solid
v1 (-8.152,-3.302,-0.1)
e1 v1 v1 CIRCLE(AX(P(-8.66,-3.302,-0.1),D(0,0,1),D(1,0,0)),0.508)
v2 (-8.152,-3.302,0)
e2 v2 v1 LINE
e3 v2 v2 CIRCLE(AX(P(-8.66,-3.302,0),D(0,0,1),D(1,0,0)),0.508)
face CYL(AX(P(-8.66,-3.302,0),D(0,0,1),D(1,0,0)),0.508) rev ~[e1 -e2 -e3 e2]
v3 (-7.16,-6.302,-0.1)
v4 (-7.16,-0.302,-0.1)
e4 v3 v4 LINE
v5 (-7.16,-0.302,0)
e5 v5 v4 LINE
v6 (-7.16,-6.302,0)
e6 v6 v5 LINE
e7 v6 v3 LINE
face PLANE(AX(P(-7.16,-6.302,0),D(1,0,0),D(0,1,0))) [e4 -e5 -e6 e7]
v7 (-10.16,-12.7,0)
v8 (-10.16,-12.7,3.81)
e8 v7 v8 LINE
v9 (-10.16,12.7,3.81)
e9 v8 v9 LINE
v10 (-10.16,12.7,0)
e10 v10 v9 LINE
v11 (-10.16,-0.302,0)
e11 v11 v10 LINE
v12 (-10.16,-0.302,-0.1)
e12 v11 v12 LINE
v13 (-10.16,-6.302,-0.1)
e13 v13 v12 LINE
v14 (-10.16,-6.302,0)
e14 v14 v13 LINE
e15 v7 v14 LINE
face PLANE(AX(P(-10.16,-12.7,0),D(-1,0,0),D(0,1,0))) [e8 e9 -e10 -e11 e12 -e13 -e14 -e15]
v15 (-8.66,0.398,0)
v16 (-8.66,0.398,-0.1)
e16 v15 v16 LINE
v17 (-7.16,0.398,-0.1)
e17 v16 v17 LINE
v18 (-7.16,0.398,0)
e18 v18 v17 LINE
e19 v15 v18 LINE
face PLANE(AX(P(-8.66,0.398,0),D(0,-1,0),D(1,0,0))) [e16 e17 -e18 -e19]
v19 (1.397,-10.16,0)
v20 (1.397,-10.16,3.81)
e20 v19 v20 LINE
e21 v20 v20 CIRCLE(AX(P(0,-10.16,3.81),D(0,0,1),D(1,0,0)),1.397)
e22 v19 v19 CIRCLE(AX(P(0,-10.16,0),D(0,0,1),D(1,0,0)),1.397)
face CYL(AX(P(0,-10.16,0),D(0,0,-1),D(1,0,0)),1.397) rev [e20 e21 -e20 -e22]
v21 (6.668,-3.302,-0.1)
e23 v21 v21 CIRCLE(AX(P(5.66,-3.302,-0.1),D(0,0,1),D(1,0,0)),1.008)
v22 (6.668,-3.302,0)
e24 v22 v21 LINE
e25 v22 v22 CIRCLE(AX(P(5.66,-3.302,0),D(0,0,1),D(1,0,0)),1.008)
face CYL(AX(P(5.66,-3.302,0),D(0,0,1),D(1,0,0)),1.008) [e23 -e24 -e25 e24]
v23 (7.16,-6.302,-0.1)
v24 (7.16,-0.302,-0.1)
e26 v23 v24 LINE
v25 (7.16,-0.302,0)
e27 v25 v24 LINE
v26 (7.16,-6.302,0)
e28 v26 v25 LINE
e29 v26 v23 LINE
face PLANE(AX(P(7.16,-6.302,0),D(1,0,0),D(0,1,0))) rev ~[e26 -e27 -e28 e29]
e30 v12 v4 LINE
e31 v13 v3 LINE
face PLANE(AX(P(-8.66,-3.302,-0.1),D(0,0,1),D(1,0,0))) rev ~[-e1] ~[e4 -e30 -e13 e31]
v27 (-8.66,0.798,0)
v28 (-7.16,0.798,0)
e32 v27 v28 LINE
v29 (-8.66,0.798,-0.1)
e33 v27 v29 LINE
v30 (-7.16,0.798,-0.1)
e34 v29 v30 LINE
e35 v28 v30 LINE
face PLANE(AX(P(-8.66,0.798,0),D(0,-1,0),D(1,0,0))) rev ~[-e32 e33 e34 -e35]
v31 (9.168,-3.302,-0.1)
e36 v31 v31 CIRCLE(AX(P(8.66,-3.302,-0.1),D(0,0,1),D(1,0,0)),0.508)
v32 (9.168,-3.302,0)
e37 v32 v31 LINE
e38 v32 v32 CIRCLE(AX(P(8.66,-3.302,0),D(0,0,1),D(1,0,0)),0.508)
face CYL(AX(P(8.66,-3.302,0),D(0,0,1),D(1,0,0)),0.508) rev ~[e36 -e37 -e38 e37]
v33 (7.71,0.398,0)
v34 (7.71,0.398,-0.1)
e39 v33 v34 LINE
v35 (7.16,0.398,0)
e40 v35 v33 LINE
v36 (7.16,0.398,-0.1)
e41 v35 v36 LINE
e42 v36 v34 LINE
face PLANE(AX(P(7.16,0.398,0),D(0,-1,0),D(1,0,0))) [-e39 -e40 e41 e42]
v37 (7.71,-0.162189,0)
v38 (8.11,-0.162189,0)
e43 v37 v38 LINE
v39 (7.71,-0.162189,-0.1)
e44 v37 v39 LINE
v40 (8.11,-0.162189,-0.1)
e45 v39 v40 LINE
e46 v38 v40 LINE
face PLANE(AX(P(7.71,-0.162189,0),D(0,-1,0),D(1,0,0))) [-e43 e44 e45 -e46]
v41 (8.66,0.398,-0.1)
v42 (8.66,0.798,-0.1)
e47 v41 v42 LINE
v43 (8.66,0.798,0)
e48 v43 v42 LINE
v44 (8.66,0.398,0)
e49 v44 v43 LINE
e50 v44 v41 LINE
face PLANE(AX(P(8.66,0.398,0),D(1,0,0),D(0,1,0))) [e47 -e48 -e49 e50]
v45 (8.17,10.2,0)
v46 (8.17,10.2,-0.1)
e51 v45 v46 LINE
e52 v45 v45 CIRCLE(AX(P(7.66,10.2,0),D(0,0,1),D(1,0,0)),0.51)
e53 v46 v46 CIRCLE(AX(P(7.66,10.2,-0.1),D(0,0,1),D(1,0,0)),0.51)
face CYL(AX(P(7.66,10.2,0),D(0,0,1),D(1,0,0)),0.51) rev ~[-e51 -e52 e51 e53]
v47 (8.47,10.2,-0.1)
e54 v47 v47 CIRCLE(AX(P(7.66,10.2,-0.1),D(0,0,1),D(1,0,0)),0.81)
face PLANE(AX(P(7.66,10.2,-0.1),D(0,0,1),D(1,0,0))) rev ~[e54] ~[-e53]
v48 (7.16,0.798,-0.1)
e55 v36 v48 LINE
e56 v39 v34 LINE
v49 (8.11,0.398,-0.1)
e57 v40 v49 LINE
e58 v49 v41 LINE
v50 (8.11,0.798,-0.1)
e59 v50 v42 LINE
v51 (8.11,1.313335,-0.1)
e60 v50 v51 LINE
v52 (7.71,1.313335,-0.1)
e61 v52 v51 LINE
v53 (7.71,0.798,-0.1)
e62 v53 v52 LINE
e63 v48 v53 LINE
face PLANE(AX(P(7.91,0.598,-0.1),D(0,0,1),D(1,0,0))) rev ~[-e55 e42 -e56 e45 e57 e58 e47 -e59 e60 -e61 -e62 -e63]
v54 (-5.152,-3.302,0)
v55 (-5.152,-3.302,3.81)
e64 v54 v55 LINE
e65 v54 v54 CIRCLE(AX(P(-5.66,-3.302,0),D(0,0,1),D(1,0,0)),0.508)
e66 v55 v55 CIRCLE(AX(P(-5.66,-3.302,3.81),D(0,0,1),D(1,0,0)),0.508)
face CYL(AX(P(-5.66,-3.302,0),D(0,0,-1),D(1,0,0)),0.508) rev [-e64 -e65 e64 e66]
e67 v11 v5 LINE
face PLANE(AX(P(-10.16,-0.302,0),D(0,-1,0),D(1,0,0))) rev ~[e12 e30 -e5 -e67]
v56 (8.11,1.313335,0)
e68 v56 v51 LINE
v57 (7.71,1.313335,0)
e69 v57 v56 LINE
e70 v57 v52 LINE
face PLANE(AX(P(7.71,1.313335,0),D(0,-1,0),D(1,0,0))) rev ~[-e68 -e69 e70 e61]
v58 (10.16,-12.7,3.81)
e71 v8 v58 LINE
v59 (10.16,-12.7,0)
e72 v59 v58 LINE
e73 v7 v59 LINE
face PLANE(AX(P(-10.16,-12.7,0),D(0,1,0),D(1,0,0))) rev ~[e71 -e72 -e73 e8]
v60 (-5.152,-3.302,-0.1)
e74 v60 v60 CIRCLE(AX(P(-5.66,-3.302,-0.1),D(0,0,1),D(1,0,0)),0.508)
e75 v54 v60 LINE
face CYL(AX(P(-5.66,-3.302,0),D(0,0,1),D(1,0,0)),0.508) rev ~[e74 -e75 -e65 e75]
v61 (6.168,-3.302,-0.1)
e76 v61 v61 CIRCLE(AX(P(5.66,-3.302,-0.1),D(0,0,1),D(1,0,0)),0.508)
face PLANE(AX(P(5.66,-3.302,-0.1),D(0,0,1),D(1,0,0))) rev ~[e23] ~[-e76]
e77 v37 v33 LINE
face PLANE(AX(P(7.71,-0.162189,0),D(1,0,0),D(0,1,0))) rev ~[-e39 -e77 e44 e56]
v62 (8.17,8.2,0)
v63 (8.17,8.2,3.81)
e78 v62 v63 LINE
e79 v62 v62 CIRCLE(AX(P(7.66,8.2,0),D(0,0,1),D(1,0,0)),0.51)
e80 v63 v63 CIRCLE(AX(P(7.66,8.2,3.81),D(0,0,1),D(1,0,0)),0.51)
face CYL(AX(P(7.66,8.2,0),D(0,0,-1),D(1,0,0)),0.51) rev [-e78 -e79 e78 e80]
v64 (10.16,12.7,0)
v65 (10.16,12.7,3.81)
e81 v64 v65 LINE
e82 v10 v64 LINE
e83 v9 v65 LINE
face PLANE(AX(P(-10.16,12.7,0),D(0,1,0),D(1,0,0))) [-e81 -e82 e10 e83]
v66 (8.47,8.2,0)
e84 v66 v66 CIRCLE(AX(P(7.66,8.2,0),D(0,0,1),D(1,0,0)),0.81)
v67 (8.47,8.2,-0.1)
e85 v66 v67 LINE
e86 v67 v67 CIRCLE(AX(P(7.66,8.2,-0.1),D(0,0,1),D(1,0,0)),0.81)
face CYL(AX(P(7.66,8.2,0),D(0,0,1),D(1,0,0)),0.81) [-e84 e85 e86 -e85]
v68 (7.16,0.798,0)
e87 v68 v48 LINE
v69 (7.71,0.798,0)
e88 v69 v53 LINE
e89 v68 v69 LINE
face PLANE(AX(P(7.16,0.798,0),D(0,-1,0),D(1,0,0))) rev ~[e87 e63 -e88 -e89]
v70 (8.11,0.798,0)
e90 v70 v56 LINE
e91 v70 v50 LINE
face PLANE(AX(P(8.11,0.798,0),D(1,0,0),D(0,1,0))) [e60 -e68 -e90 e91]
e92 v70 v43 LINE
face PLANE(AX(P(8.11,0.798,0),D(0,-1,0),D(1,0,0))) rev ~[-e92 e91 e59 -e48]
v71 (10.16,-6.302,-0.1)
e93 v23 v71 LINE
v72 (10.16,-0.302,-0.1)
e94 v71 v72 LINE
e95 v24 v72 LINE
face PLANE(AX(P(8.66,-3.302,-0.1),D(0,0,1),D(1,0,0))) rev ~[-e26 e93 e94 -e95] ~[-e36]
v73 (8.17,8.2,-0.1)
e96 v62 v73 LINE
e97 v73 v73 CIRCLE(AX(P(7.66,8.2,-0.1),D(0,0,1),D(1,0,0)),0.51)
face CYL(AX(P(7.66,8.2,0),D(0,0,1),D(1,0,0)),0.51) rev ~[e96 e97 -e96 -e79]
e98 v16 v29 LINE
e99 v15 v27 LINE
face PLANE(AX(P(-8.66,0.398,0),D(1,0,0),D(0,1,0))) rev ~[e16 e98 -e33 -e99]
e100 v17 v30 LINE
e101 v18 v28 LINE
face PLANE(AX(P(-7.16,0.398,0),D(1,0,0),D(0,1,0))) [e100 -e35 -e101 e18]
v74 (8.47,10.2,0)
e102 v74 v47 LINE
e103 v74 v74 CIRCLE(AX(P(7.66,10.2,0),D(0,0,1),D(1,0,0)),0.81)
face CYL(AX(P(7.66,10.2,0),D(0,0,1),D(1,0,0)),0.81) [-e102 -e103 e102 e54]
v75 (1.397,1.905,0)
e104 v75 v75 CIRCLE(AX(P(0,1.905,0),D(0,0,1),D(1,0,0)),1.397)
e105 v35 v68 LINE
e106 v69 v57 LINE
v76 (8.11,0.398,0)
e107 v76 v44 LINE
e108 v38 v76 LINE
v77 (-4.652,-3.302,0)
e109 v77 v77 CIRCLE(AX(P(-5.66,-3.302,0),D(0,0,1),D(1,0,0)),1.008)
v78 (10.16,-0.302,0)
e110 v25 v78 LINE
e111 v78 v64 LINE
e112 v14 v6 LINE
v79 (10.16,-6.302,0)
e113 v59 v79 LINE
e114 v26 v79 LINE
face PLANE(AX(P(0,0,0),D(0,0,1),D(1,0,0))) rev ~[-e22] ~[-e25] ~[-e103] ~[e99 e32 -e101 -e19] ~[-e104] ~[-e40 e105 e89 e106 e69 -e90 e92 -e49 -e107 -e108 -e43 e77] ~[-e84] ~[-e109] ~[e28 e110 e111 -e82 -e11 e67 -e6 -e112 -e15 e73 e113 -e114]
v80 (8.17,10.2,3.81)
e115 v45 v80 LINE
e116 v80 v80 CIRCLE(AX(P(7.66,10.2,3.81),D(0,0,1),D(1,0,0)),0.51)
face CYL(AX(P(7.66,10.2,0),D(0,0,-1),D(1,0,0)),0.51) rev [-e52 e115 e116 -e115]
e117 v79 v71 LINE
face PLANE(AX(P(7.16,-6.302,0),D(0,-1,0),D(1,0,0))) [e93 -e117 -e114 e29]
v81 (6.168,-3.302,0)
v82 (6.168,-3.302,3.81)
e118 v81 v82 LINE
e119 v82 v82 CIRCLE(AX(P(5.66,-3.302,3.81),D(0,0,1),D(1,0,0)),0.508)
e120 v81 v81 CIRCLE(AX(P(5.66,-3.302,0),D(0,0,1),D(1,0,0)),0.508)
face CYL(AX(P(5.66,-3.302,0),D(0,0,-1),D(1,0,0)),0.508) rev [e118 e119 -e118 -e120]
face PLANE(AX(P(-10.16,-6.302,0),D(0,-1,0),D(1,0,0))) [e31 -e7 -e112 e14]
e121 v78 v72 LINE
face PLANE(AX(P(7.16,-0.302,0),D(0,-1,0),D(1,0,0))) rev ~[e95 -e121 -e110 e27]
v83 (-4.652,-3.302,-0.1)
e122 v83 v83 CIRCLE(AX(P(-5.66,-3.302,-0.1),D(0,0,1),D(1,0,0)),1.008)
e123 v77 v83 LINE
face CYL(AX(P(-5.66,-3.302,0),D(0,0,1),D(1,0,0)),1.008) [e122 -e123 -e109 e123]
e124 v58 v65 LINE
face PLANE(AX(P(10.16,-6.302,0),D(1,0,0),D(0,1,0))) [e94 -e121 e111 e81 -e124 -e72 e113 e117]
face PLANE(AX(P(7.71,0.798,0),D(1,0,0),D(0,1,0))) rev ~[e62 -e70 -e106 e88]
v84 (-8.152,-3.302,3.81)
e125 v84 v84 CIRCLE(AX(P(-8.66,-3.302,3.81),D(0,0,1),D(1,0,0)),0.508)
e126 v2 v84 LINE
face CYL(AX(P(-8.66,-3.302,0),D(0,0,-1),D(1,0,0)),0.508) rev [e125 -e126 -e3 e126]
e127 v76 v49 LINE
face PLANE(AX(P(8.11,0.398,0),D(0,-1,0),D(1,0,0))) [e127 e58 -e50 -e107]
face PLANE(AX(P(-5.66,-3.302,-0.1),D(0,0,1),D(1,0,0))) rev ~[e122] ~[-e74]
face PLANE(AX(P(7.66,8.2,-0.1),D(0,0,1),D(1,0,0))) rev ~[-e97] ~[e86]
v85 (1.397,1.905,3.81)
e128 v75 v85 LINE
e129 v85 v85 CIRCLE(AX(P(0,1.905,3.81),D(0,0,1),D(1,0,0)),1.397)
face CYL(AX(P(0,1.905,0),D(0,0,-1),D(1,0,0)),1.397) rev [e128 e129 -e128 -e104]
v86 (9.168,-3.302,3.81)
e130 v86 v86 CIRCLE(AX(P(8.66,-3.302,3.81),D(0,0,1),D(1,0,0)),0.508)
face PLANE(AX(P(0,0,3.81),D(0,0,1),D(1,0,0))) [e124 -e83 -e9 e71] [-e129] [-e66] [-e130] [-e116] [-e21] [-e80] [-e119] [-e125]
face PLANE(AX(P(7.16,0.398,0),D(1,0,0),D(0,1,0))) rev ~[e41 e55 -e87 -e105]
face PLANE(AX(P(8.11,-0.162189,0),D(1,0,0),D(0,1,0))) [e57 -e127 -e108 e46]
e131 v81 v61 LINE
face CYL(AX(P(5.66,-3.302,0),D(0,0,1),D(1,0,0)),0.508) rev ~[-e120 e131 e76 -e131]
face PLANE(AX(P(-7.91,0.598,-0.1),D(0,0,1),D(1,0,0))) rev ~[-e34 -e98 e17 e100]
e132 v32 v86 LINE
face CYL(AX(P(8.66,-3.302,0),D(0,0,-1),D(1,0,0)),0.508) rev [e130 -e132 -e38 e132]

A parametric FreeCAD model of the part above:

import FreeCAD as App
import Part
import Sketcher

V = App.Vector
Q = App.Units.Quantity

doc = App.newDocument("Part")
params = doc.addObject("Spreadsheet::Sheet", "Params")
for row, (alias, value) in enumerate([
    ("sketch1_diameter", "1.02 mm"),
    ("sketch1_height", "25.4 mm"),
    ("sketch1_width", "20.32 mm"),
    ("pad1_length", "3.81 mm"),
    ("sketch2_diameter", "1.62 mm"),
    ("sketch2_diameter2", "1.02 mm"),
    ("sketch2_width", "3 mm"),
    ("sketch2_height", "6 mm"),
    ("sketch2_width2", "0.4 mm"),
    ("pad2_length", "0.1 mm"),
], start=1):
    params.set(f"A{row}", alias)
    params.set(f"B{row}", "=" + value)
    params.setAlias(f"B{row}", alias)

body = doc.addObject("PartDesign::Body", "Body")

# Sketch on XY plane
sketch1 = body.newObject("Sketcher::SketchObject", "Sketch")
sketch1.AttachmentSupport = (doc.getObject("XY_Plane"), [""])
sketch1.MapMode = "FlatFace"
sketch1.addGeometry([
    Part.LineSegment(V(-10.16, 12.7, 0), V(-10.16, -12.7, 0)),  # 0
    Part.LineSegment(V(-10.16, -12.7, 0), V(10.16, -12.7, 0)),  # 1
    Part.LineSegment(V(10.16, -12.7, 0), V(10.16, 12.7, 0)),  # 2
    Part.LineSegment(V(10.16, 12.7, 0), V(-10.16, 12.7, 0)),  # 3
    Part.Circle(V(-8.66, -3.302, 0), V(0, 0, 1), 0.508),  # 4
    Part.Circle(V(-5.66, -3.302, 0), V(0, 0, 1), 0.508),  # 5
    Part.Circle(V(0, -10.16, 0), V(0, 0, 1), 1.397),  # 6
    Part.Circle(V(5.66, -3.302, 0), V(0, 0, 1), 0.508),  # 7
    Part.Circle(V(8.66, -3.302, 0), V(0, 0, 1), 0.508),  # 8
    Part.Circle(V(0, 1.905, 0), V(0, 0, 1), 1.397),  # 9
    Part.Circle(V(7.66, 8.2, 0), V(0, 0, 1), 0.51),  # 10
    Part.Circle(V(7.66, 10.2, 0), V(0, 0, 1), 0.51),  # 11
], False)
sketch1.addConstraint([
    Sketcher.Constraint("Coincident", 0, 2, 1, 1),
    Sketcher.Constraint("Coincident", 1, 2, 2, 1),
    Sketcher.Constraint("Coincident", 2, 2, 3, 1),
    Sketcher.Constraint("Coincident", 3, 2, 0, 1),
    Sketcher.Constraint("Vertical", 0),
    Sketcher.Constraint("Horizontal", 1),
    Sketcher.Constraint("Vertical", 2),
    Sketcher.Constraint("Horizontal", 3),
    Sketcher.Constraint("Equal", 4, 5),
    Sketcher.Constraint("Equal", 5, 7),
    Sketcher.Constraint("Equal", 7, 8),
    Sketcher.Constraint("Equal", 6, 9),
    Sketcher.Constraint("Equal", 10, 11),
    Sketcher.Constraint("Symmetric", 0, 2, 2, 2, -1, 1),
    Sketcher.Constraint("Symmetric", 5, 3, 7, 3, -2),
    Sketcher.Constraint("Symmetric", 4, 3, 8, 3, -2),
    Sketcher.Constraint("PointOnObject", 6, 3, -2),
    Sketcher.Constraint("PointOnObject", 9, 3, -2),
    Sketcher.Constraint("Horizontal", 4, 3, 5, 3),
    Sketcher.Constraint("Vertical", 10, 3, 11, 3),
    Sketcher.Constraint("Diameter", 10, Q("1.02 mm")),
    Sketcher.Constraint("Diameter", 4, Q("1.016 mm")),
    Sketcher.Constraint("Diameter", 6, Q("2.794 mm")),
    Sketcher.Constraint("DistanceY", 0, 2, 0, 1, Q("25.4 mm")),
    Sketcher.Constraint("DistanceX", 4, 3, 5, 3, Q("3 mm")),
    Sketcher.Constraint("DistanceX", 10, 3, 8, 3, Q("1 mm")),
    Sketcher.Constraint("DistanceY", 10, 3, 11, 3, Q("2 mm")),
    Sketcher.Constraint("DistanceX", 1, 1, 1, 2, Q("20.32 mm")),
    Sketcher.Constraint("DistanceY", -1, 1, 10, 3, Q("8.2 mm")),
    Sketcher.Constraint("DistanceX", 0, 2, 4, 3, Q("1.5 mm")),
    Sketcher.Constraint("DistanceY", 6, 3, -1, 1, Q("10.16 mm")),
    Sketcher.Constraint("DistanceY", 4, 3, -1, 1, Q("3.302 mm")),
    Sketcher.Constraint("DistanceY", -1, 1, 9, 3, Q("1.905 mm")),
])
sketch1.setExpression("Constraints[20]", "Params.sketch1_diameter")
sketch1.setExpression("Constraints[23]", "Params.sketch1_height")
sketch1.setExpression("Constraints[27]", "Params.sketch1_width")
pad1 = body.newObject("PartDesign::Pad", "Pad")
pad1.Profile = sketch1
pad1.setExpression("Length", "Params.pad1_length")

# Sketch on XY plane
sketch2 = body.newObject("Sketcher::SketchObject", "Sketch001")
sketch2.AttachmentSupport = (doc.getObject("XY_Plane"), [""])
sketch2.MapMode = "FlatFace"
sketch2.addGeometry([
    Part.LineSegment(V(7.16, -0.302, 0), V(7.16, -6.302, 0)),  # 0
    Part.LineSegment(V(7.16, -6.302, 0), V(10.16, -6.302, 0)),  # 1
    Part.LineSegment(V(10.16, -6.302, 0), V(10.16, -0.302, 0)),  # 2
    Part.LineSegment(V(10.16, -0.302, 0), V(7.16, -0.302, 0)),  # 3
    Part.Circle(V(8.66, -3.302, 0), V(0, 0, 1), 0.508),  # 4
    Part.LineSegment(V(-10.16, -0.302, 0), V(-10.16, -6.302, 0)),  # 5
    Part.LineSegment(V(-10.16, -6.302, 0), V(-7.16, -6.302, 0)),  # 6
    Part.LineSegment(V(-7.16, -6.302, 0), V(-7.16, -0.302, 0)),  # 7
    Part.LineSegment(V(-7.16, -0.302, 0), V(-10.16, -0.302, 0)),  # 8
    Part.Circle(V(-8.66, -3.302, 0), V(0, 0, 1), 0.508),  # 9
    Part.Circle(V(5.66, -3.302, 0), V(0, 0, 1), 1.008),  # 10
    Part.Circle(V(5.66, -3.302, 0), V(0, 0, 1), 0.508),  # 11
    Part.Circle(V(-5.66, -3.302, 0), V(0, 0, 1), 1.008),  # 12
    Part.Circle(V(-5.66, -3.302, 0), V(0, 0, 1), 0.508),  # 13
    Part.Circle(V(7.66, 8.2, 0), V(0, 0, 1), 0.81),  # 14
    Part.Circle(V(7.66, 8.2, 0), V(0, 0, 1), 0.51),  # 15
    Part.Circle(V(7.66, 10.2, 0), V(0, 0, 1), 0.81),  # 16
    Part.Circle(V(7.66, 10.2, 0), V(0, 0, 1), 0.51),  # 17
    Part.LineSegment(V(7.16, 0.798, 0), V(7.16, 0.398, 0)),  # 18
    Part.LineSegment(V(7.16, 0.398, 0), V(7.71, 0.398, 0)),  # 19
    Part.LineSegment(V(7.71, 0.398, 0), V(7.71, -0.162189, 0)),  # 20
    Part.LineSegment(V(7.71, -0.162189, 0), V(8.11, -0.162189, 0)),  # 21
    Part.LineSegment(V(8.11, -0.162189, 0), V(8.11, 0.398, 0)),  # 22
    Part.LineSegment(V(8.11, 0.398, 0), V(8.66, 0.398, 0)),  # 23
    Part.LineSegment(V(8.66, 0.398, 0), V(8.66, 0.798, 0)),  # 24
    Part.LineSegment(V(8.66, 0.798, 0), V(8.11, 0.798, 0)),  # 25
    Part.LineSegment(V(8.11, 0.798, 0), V(8.11, 1.313335, 0)),  # 26
    Part.LineSegment(V(8.11, 1.313335, 0), V(7.71, 1.313335, 0)),  # 27
    Part.LineSegment(V(7.71, 1.313335, 0), V(7.71, 0.798, 0)),  # 28
    Part.LineSegment(V(7.71, 0.798, 0), V(7.16, 0.798, 0)),  # 29
    Part.LineSegment(V(-8.66, 0.798, 0), V(-8.66, 0.398, 0)),  # 30
    Part.LineSegment(V(-8.66, 0.398, 0), V(-7.16, 0.398, 0)),  # 31
    Part.LineSegment(V(-7.16, 0.398, 0), V(-7.16, 0.798, 0)),  # 32
    Part.LineSegment(V(-7.16, 0.798, 0), V(-8.66, 0.798, 0)),  # 33
], False)
sketch2.addConstraint([
    Sketcher.Constraint("Coincident", 0, 2, 1, 1),
    Sketcher.Constraint("Coincident", 1, 2, 2, 1),
    Sketcher.Constraint("Coincident", 2, 2, 3, 1),
    Sketcher.Constraint("Coincident", 3, 2, 0, 1),
    Sketcher.Constraint("Coincident", 5, 2, 6, 1),
    Sketcher.Constraint("Coincident", 6, 2, 7, 1),
    Sketcher.Constraint("Coincident", 7, 2, 8, 1),
    Sketcher.Constraint("Coincident", 8, 2, 5, 1),
    Sketcher.Constraint("Coincident", 18, 2, 19, 1),
    Sketcher.Constraint("Coincident", 19, 2, 20, 1),
    Sketcher.Constraint("Coincident", 20, 2, 21, 1),
    Sketcher.Constraint("Coincident", 21, 2, 22, 1),
    Sketcher.Constraint("Coincident", 22, 2, 23, 1),
    Sketcher.Constraint("Coincident", 23, 2, 24, 1),
    Sketcher.Constraint("Coincident", 24, 2, 25, 1),
    Sketcher.Constraint("Coincident", 25, 2, 26, 1),
    Sketcher.Constraint("Coincident", 26, 2, 27, 1),
    Sketcher.Constraint("Coincident", 27, 2, 28, 1),
    Sketcher.Constraint("Coincident", 28, 2, 29, 1),
    Sketcher.Constraint("Coincident", 29, 2, 18, 1),
    Sketcher.Constraint("Coincident", 30, 2, 31, 1),
    Sketcher.Constraint("Coincident", 31, 2, 32, 1),
    Sketcher.Constraint("Coincident", 32, 2, 33, 1),
    Sketcher.Constraint("Coincident", 33, 2, 30, 1),
    Sketcher.Constraint("Vertical", 0),
    Sketcher.Constraint("Horizontal", 1),
    Sketcher.Constraint("Vertical", 2),
    Sketcher.Constraint("Horizontal", 3),
    Sketcher.Constraint("Vertical", 5),
    Sketcher.Constraint("Horizontal", 6),
    Sketcher.Constraint("Vertical", 7),
    Sketcher.Constraint("Horizontal", 8),
    Sketcher.Constraint("Vertical", 18),
    Sketcher.Constraint("Horizontal", 19),
    Sketcher.Constraint("Vertical", 20),
    Sketcher.Constraint("Horizontal", 21),
    Sketcher.Constraint("Vertical", 22),
    Sketcher.Constraint("Horizontal", 23),
    Sketcher.Constraint("Vertical", 24),
    Sketcher.Constraint("Horizontal", 25),
    Sketcher.Constraint("Vertical", 26),
    Sketcher.Constraint("Horizontal", 27),
    Sketcher.Constraint("Vertical", 28),
    Sketcher.Constraint("Horizontal", 29),
    Sketcher.Constraint("Vertical", 30),
    Sketcher.Constraint("Horizontal", 31),
    Sketcher.Constraint("Vertical", 32),
    Sketcher.Constraint("Horizontal", 33),
    Sketcher.Constraint("Coincident", 11, 3, 10, 3),
    Sketcher.Constraint("Coincident", 13, 3, 12, 3),
    Sketcher.Constraint("Coincident", 15, 3, 14, 3),
    Sketcher.Constraint("Coincident", 17, 3, 16, 3),
    Sketcher.Constraint("Equal", 4, 9),
    Sketcher.Constraint("Equal", 9, 11),
    Sketcher.Constraint("Equal", 10, 12),
    Sketcher.Constraint("Equal", 11, 13),
    Sketcher.Constraint("Equal", 14, 16),
    Sketcher.Constraint("Equal", 15, 17),
    Sketcher.Constraint("Symmetric", 4, 3, 9, 3, -2),
    Sketcher.Constraint("Symmetric", 10, 3, 12, 3, -2),
    Sketcher.Constraint("Symmetric", 1, 2, 5, 2, -2),
    Sketcher.Constraint("Symmetric", 3, 2, 7, 2, -2),
    Sketcher.Constraint("Symmetric", 23, 2, 30, 2, -2),
    Sketcher.Constraint("Symmetric", 18, 2, 31, 2, -2),
    Sketcher.Constraint("Horizontal", 9, 3, 10, 3),
    Sketcher.Constraint("Horizontal", 25, 2, 28, 2),
    Sketcher.Constraint("Horizontal", 29, 2, 32, 2),
    Sketcher.Constraint("Vertical", 15, 3, 16, 3),
    Sketcher.Constraint("Vertical", 3, 2, 18, 2),
    Sketcher.Constraint("Vertical", 4, 3, 23, 2),
    Sketcher.Constraint("Vertical", 22, 2, 25, 2),
    Sketcher.Constraint("Vertical", 20, 2, 27, 2),
    Sketcher.Constraint("Equal", 19, 23),
    Sketcher.Constraint("Equal", 27, 18),
    Sketcher.Constraint("Diameter", 14, Q("1.62 mm")),
    Sketcher.Constraint("Diameter", 15, Q("1.02 mm")),
    Sketcher.Constraint("DistanceX", 1, 1, 1, 2, Q("3 mm")),
    Sketcher.Constraint("DistanceY", 0, 2, 0, 1, Q("6 mm")),
    Sketcher.Constraint("Diameter", 4, Q("1.016 mm")),
    Sketcher.Constraint("Diameter", 10, Q("2.016 mm")),
    Sketcher.Constraint("DistanceX", 21, 1, 21, 2, Q("0.4 mm")),
    Sketcher.Constraint("DistanceX", 31, 1, 31, 2, Q("1.5 mm")),
    Sketcher.Constraint("DistanceX", 10, 3, 4, 3, Q("3 mm")),
    Sketcher.Constraint("DistanceX", 14, 3, 4, 3, Q("1 mm")),
    Sketcher.Constraint("DistanceY", 14, 3, 16, 3, Q("2 mm")),
    Sketcher.Constraint("DistanceY", 0, 2, 4, 3, Q("3 mm")),
    Sketcher.Constraint("DistanceY", -1, 1, 14, 3, Q("8.2 mm")),
    Sketcher.Constraint("DistanceY", 3, 2, 18, 2, Q("0.7 mm")),
    Sketcher.Constraint("DistanceX", -1, 1, 4, 3, Q("8.66 mm")),
    Sketcher.Constraint("DistanceY", 4, 3, -1, 1, Q("3.302 mm")),
    Sketcher.Constraint("DistanceY", 20, 2, 20, 1, Q("0.560189 mm")),
    Sketcher.Constraint("DistanceY", 26, 1, 26, 2, Q("0.515335 mm")),
])
sketch2.setExpression("Constraints[74]", "Params.sketch2_diameter")
sketch2.setExpression("Constraints[75]", "Params.sketch2_diameter2")
sketch2.setExpression("Constraints[76]", "Params.sketch2_width")
sketch2.setExpression("Constraints[77]", "Params.sketch2_height")
sketch2.setExpression("Constraints[80]", "Params.sketch2_width2")
pad2 = body.newObject("PartDesign::Pad", "Pad001")
pad2.Profile = sketch2
pad2.setExpression("Length", "Params.pad2_length")
pad2.Reversed = True

doc.recompute()
